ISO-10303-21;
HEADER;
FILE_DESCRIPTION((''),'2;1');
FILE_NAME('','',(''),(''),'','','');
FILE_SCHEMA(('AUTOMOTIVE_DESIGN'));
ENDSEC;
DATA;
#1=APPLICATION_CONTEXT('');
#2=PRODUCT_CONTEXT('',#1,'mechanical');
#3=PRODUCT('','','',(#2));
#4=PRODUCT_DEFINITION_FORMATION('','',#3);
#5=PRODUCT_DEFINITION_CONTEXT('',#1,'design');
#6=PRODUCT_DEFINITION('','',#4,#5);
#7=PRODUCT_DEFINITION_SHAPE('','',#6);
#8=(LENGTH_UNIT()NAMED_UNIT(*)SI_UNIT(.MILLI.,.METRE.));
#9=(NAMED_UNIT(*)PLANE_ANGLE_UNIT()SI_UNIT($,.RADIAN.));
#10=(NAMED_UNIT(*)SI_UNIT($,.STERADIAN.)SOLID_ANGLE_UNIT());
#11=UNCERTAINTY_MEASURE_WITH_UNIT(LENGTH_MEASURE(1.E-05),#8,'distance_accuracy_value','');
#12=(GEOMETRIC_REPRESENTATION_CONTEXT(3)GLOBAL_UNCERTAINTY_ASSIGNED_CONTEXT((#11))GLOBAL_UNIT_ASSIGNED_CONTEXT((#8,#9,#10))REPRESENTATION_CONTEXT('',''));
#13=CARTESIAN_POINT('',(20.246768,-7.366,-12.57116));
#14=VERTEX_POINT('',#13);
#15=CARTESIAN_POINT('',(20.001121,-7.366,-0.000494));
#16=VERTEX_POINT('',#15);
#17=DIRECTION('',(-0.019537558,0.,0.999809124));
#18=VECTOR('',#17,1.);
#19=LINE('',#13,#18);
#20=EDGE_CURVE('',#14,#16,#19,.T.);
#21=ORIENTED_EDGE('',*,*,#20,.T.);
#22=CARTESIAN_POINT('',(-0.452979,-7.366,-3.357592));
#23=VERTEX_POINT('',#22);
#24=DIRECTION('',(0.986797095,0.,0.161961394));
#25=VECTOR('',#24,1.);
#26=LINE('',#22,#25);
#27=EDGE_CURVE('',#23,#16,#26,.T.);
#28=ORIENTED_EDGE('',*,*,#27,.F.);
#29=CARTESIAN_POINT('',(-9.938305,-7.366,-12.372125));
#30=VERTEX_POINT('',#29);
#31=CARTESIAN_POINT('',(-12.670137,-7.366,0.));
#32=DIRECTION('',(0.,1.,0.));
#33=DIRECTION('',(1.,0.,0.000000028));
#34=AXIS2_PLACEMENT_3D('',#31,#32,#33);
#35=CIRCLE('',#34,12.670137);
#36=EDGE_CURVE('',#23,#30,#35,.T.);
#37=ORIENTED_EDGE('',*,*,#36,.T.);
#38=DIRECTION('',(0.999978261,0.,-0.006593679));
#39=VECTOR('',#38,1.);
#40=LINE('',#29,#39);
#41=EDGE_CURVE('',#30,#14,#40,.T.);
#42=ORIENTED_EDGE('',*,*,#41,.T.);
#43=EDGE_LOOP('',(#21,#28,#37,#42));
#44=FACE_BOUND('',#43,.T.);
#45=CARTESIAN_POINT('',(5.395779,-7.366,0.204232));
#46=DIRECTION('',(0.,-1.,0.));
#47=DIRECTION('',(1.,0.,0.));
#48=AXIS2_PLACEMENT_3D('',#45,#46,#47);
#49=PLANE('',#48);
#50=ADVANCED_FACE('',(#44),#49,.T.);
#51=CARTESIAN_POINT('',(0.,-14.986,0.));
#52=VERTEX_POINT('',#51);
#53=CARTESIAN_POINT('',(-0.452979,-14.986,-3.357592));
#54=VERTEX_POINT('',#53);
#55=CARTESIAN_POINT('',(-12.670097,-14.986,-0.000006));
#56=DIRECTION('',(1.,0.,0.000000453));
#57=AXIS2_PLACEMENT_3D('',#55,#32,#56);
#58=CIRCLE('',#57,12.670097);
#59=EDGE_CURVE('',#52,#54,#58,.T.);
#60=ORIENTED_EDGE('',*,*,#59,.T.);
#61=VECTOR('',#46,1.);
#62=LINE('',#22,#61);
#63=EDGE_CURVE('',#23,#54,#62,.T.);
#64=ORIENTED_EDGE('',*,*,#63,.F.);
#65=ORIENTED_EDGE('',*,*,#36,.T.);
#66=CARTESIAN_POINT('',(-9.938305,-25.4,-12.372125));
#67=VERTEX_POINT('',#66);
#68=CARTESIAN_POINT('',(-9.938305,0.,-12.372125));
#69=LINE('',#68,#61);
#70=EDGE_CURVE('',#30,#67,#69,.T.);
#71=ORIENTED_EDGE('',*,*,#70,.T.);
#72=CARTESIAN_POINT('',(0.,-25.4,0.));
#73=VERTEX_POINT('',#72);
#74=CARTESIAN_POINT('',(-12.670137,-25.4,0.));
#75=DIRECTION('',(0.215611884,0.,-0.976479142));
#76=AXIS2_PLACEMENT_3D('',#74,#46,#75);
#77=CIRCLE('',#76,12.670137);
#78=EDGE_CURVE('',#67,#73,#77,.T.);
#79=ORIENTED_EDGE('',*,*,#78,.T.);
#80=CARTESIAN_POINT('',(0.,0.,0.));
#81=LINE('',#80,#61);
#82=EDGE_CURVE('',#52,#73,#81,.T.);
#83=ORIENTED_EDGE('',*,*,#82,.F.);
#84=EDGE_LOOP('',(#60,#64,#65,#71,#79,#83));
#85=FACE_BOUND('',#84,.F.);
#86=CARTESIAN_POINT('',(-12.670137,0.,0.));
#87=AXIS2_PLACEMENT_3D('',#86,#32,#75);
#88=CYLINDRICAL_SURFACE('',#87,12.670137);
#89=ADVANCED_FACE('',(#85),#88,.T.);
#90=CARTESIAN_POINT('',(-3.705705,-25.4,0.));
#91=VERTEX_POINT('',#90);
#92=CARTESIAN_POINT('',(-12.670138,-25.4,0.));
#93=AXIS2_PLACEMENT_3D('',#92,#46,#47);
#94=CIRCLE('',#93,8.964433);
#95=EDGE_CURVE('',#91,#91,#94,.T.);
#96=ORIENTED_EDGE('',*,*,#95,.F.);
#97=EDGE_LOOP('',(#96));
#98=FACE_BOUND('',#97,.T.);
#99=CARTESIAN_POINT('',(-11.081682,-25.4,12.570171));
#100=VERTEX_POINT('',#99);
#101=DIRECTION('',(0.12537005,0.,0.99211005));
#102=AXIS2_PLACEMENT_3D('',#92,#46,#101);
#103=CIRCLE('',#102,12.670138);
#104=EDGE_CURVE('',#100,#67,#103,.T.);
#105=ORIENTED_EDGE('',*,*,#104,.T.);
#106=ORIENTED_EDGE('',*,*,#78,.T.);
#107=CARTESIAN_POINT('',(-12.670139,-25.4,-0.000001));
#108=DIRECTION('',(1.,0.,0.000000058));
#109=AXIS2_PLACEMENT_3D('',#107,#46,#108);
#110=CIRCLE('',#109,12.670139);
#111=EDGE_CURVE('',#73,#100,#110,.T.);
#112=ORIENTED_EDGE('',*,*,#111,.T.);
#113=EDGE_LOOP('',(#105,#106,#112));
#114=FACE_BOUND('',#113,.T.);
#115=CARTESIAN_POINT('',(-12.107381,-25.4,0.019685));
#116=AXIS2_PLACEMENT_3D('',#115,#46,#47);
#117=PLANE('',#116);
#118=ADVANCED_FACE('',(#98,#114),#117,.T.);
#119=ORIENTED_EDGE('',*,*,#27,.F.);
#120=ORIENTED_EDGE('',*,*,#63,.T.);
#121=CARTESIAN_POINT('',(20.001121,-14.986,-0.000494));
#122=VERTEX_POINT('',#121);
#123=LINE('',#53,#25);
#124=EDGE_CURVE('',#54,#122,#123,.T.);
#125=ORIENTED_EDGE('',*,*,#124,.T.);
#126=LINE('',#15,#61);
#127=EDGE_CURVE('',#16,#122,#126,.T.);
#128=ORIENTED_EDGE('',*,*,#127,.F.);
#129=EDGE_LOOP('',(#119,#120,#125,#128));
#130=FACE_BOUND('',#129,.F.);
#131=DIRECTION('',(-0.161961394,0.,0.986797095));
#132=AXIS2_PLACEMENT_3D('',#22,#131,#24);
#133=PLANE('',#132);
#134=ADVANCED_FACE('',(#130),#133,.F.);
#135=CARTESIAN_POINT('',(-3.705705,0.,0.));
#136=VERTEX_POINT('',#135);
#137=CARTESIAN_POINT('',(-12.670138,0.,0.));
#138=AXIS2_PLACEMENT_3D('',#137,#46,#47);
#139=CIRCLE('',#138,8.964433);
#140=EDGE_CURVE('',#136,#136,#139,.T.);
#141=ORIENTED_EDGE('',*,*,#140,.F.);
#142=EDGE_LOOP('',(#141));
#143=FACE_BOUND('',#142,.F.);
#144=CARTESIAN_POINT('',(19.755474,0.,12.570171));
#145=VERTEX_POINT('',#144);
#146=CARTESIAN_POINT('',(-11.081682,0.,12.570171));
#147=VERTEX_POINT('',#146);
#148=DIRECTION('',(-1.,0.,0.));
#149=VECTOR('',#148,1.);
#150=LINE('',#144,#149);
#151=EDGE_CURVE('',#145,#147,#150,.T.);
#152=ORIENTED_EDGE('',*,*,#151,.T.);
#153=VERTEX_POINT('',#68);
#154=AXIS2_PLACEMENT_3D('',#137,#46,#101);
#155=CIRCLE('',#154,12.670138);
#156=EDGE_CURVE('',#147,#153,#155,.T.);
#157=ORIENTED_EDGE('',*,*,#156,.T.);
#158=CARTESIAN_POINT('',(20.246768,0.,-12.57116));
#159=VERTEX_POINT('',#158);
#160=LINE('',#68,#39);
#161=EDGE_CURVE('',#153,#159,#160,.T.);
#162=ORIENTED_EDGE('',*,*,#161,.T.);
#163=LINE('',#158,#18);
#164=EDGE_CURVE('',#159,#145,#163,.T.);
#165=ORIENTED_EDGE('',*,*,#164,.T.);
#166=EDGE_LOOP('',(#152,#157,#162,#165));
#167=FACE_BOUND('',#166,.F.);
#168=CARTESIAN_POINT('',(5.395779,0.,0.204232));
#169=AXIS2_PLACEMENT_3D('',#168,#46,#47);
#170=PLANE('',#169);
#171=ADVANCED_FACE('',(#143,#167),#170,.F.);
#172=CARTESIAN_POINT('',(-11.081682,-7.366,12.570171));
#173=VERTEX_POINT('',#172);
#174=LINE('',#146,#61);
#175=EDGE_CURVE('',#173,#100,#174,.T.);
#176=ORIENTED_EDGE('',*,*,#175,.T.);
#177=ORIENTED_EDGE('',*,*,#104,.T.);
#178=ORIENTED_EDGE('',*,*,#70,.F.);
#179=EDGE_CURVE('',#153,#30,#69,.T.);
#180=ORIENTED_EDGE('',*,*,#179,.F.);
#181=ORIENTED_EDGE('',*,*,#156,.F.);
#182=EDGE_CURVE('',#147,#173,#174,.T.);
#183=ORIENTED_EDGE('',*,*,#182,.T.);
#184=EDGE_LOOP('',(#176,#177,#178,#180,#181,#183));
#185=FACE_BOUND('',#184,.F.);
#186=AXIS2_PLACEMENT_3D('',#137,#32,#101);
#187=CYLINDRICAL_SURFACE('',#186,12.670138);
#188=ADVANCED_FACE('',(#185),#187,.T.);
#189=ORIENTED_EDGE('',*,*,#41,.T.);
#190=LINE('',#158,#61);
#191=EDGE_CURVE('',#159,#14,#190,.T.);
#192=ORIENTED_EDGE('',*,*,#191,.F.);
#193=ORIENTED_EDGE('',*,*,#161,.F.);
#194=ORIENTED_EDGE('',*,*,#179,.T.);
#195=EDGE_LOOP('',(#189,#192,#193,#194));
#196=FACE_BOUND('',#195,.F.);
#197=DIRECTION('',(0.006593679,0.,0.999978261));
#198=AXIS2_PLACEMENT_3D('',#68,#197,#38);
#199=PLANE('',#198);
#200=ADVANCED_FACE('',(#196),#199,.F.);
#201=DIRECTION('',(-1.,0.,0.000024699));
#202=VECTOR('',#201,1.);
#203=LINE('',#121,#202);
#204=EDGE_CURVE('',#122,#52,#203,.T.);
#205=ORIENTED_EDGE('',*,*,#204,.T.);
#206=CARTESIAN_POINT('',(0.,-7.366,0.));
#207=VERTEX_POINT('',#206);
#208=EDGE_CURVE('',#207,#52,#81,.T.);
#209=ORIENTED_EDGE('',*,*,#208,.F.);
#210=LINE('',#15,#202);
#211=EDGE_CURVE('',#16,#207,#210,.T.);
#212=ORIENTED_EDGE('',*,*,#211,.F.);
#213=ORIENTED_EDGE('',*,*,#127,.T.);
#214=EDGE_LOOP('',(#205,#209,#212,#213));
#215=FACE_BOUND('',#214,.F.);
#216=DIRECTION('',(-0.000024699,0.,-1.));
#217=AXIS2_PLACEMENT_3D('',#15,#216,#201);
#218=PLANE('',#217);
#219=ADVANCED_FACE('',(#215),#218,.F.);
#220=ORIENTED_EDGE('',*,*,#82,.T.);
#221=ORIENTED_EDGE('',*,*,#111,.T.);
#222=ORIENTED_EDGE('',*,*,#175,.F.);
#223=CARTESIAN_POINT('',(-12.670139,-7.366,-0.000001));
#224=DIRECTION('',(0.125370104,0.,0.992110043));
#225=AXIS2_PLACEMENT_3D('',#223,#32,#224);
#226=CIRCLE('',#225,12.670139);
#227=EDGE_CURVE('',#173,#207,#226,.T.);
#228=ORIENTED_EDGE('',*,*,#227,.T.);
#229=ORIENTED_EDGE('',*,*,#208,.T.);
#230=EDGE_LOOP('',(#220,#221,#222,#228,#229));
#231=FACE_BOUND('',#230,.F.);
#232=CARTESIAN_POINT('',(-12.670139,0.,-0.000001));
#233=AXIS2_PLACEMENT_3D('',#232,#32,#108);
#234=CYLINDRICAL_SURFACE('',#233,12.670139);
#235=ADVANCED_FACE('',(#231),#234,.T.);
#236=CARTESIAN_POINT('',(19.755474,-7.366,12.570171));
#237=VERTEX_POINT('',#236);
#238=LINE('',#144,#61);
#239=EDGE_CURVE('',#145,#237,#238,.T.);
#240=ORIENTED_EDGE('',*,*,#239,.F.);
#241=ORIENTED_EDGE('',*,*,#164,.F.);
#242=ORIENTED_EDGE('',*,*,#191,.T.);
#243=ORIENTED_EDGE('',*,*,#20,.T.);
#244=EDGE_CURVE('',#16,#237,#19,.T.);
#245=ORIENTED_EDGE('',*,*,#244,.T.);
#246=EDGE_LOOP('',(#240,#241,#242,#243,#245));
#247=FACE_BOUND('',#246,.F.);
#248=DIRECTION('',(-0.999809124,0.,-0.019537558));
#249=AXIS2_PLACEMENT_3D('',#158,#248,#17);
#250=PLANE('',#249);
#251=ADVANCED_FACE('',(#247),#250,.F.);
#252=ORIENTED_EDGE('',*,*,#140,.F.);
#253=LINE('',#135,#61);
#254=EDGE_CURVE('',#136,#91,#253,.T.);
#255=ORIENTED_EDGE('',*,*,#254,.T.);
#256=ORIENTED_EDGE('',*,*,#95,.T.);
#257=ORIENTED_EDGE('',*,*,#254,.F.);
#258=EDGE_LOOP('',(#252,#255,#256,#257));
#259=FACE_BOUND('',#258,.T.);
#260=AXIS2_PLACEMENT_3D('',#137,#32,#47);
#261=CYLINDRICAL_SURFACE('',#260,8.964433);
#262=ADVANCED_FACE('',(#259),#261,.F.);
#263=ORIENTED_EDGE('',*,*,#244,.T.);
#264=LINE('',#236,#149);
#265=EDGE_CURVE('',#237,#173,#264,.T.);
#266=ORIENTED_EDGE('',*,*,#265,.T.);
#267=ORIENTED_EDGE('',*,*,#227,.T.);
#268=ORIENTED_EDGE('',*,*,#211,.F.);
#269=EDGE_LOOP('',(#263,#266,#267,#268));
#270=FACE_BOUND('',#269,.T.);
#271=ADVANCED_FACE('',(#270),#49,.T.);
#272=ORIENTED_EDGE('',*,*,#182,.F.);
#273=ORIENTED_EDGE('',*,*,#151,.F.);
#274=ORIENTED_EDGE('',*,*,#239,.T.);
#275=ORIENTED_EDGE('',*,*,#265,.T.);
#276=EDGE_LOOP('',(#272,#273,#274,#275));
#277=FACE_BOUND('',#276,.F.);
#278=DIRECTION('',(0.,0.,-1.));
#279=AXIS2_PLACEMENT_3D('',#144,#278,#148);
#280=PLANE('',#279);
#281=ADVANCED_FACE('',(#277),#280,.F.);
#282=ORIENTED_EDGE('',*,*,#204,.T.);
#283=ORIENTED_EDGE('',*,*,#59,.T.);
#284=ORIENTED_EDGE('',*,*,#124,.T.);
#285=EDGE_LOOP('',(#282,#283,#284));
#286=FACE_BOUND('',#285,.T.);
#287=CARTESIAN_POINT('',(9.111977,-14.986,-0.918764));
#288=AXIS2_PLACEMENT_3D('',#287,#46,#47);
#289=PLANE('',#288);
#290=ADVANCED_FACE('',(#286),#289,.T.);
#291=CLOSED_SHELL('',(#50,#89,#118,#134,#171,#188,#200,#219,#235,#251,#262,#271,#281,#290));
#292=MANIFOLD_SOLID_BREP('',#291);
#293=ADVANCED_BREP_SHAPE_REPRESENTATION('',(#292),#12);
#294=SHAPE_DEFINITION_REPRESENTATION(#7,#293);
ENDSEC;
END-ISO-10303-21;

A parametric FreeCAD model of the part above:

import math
import FreeCAD as App
import Part
import Sketcher
from FreeCAD import Vector
Q = App.Units.Quantity

doc = App.newDocument("Part")
body = doc.addObject("PartDesign::Body", "Body")

sketch1 = body.newObject("Sketcher::SketchObject", "Sketch")
sketch1.AttachmentSupport = (doc.getObject("XZ_Plane"), [""])
sketch1.MapMode = "FlatFace"
sketch1.addGeometry([
    Part.ArcOfCircle(Part.Circle(Vector(-13, 0, 0), Vector(0, 0, 1), 13), math.radians(-78), math.radians(0)),
    Part.ArcOfCircle(Part.Circle(Vector(-13, 0, 0), Vector(0, 0, 1), 13), math.radians(0), math.radians(83)),
    Part.ArcOfCircle(Part.Circle(Vector(-13, 0, 0), Vector(0, 0, 1), 13), math.radians(83), math.radians(282)),
    Part.Circle(Vector(-13, 0, 0), Vector(0, 0, 1), 9),
], False)
sketch1.addConstraint([
    Sketcher.Constraint("Tangent", 0, 2, 1, 1),
    Sketcher.Constraint("Tangent", 1, 2, 2, 1),
    Sketcher.Constraint("Tangent", 2, 2, 0, 1),
    Sketcher.Constraint("Coincident", 0, 2, -1, 1),
    Sketcher.Constraint("Coincident", 3, 3, 0, 3),
    Sketcher.Constraint("PointOnObject", 0, 3, -1),
    Sketcher.Constraint("Radius", 1, 12.670139),
    Sketcher.Constraint("Diameter", 3, 17.928866),
    Sketcher.Constraint("DistanceY", -1, 1, 1, 2, 12.570171),
    Sketcher.Constraint("DistanceX", 2, 2, -1, 1, 9.938305),
])
pad1 = body.newObject("PartDesign::Pad", "Pad")
pad1.Profile = sketch1
pad1.Length = Q("1 in")

sketch2 = body.newObject("Sketcher::SketchObject", "Sketch001")
sketch2.AttachmentSupport = (doc.getObject("XZ_Plane"), [""])
sketch2.MapMode = "FlatFace"
sketch2.addGeometry([
    Part.ArcOfCircle(Part.Circle(Vector(-12.670139, -0.000001, 0), Vector(0, 0, 1), 12.670139), math.radians(0.000003), math.radians(82.797871)),
    Part.ArcOfCircle(Part.Circle(Vector(-12.670137, 0, 0), Vector(0, 0, 1), 12.670137), math.radians(-77.548572), math.radians(0.000002)),
    Part.LineSegment(Vector(-9.938305, -12.372125, 0), Vector(20.246768, -12.57116, 0)),
    Part.LineSegment(Vector(20.246768, -12.57116, 0), Vector(19.755474, 12.570171, 0)),
    Part.LineSegment(Vector(19.755474, 12.570171, 0), Vector(-11.081682, 12.570171, 0)),
], False)
sketch2.addConstraint([
    Sketcher.Constraint("Tangent", 0, 1, 1, 2),
    Sketcher.Constraint("Coincident", 1, 1, 2, 1),
    Sketcher.Constraint("Coincident", 2, 2, 3, 1),
    Sketcher.Constraint("Coincident", 3, 2, 4, 1),
    Sketcher.Constraint("Coincident", 4, 2, 0, 2),
    Sketcher.Constraint("Horizontal", 4),
    Sketcher.Constraint("Coincident", 0, 1, -1, 1),
    Sketcher.Constraint("Equal", 0, 1),
    Sketcher.Constraint("PointOnObject", 0, 3, -1),
    Sketcher.Constraint("Radius", 0, 12.670139),
    Sketcher.Constraint("Distance", 2, 30.185729),
    Sketcher.Constraint("Distance", 3, 25.146131),
    Sketcher.Constraint("DistanceX", 4, 2, 4, 1, 30.837156),
    Sketcher.Constraint("DistanceY", 2, 2, -1, 1, 12.57116),
    Sketcher.Constraint("DistanceY", -1, 1, 3, 2, 12.570171),
])
pad2 = body.newObject("PartDesign::Pad", "Pad001")
pad2.Profile = sketch2
pad2.Length = Q("0.29 in")

sketch3 = body.newObject("Sketcher::SketchObject", "Sketch002")
sketch3.AttachmentSupport = (doc.getObject("XZ_Plane"), [""])
sketch3.MapMode = "FlatFace"
sketch3.AttachmentOffset = App.Placement(Vector(0, 0, 0.29 * 25.4), App.Rotation())
sketch3.addGeometry([
    Part.LineSegment(Vector(-0.5, -3.4, 0), Vector(20, 0, 0)),
    Part.LineSegment(Vector(20, 0, 0), Vector(0, 0, 0)),
    Part.ArcOfCircle(Part.Circle(Vector(-12.7, 0, 0), Vector(0, 0, 1), 12.7), math.radians(-15.37), math.radians(0)),
], False)
sketch3.addConstraint([
    Sketcher.Constraint("Coincident", 0, 2, 1, 1),
    Sketcher.Constraint("Coincident", 1, 2, 2, 2),
    Sketcher.Constraint("Coincident", 2, 1, 0, 1),
    Sketcher.Constraint("Coincident", 1, 2, -1, 1),
    Sketcher.Constraint("Radius", 2, 12.670097),
    Sketcher.Constraint("DistanceX", 2, 1, 0, 2, 20.4541),
    Sketcher.Constraint("Distance", 1, 20.001121),
    Sketcher.Constraint("DistanceY", 2, 1, -1, 1, 3.357592),
    Sketcher.Constraint("DistanceY", 0, 2, 2, 3, 0.000488),
])
pad3 = body.newObject("PartDesign::Pad", "Pad002")
pad3.Profile = sketch3
pad3.Length = Q("0.3 in")

doc.recompute()
